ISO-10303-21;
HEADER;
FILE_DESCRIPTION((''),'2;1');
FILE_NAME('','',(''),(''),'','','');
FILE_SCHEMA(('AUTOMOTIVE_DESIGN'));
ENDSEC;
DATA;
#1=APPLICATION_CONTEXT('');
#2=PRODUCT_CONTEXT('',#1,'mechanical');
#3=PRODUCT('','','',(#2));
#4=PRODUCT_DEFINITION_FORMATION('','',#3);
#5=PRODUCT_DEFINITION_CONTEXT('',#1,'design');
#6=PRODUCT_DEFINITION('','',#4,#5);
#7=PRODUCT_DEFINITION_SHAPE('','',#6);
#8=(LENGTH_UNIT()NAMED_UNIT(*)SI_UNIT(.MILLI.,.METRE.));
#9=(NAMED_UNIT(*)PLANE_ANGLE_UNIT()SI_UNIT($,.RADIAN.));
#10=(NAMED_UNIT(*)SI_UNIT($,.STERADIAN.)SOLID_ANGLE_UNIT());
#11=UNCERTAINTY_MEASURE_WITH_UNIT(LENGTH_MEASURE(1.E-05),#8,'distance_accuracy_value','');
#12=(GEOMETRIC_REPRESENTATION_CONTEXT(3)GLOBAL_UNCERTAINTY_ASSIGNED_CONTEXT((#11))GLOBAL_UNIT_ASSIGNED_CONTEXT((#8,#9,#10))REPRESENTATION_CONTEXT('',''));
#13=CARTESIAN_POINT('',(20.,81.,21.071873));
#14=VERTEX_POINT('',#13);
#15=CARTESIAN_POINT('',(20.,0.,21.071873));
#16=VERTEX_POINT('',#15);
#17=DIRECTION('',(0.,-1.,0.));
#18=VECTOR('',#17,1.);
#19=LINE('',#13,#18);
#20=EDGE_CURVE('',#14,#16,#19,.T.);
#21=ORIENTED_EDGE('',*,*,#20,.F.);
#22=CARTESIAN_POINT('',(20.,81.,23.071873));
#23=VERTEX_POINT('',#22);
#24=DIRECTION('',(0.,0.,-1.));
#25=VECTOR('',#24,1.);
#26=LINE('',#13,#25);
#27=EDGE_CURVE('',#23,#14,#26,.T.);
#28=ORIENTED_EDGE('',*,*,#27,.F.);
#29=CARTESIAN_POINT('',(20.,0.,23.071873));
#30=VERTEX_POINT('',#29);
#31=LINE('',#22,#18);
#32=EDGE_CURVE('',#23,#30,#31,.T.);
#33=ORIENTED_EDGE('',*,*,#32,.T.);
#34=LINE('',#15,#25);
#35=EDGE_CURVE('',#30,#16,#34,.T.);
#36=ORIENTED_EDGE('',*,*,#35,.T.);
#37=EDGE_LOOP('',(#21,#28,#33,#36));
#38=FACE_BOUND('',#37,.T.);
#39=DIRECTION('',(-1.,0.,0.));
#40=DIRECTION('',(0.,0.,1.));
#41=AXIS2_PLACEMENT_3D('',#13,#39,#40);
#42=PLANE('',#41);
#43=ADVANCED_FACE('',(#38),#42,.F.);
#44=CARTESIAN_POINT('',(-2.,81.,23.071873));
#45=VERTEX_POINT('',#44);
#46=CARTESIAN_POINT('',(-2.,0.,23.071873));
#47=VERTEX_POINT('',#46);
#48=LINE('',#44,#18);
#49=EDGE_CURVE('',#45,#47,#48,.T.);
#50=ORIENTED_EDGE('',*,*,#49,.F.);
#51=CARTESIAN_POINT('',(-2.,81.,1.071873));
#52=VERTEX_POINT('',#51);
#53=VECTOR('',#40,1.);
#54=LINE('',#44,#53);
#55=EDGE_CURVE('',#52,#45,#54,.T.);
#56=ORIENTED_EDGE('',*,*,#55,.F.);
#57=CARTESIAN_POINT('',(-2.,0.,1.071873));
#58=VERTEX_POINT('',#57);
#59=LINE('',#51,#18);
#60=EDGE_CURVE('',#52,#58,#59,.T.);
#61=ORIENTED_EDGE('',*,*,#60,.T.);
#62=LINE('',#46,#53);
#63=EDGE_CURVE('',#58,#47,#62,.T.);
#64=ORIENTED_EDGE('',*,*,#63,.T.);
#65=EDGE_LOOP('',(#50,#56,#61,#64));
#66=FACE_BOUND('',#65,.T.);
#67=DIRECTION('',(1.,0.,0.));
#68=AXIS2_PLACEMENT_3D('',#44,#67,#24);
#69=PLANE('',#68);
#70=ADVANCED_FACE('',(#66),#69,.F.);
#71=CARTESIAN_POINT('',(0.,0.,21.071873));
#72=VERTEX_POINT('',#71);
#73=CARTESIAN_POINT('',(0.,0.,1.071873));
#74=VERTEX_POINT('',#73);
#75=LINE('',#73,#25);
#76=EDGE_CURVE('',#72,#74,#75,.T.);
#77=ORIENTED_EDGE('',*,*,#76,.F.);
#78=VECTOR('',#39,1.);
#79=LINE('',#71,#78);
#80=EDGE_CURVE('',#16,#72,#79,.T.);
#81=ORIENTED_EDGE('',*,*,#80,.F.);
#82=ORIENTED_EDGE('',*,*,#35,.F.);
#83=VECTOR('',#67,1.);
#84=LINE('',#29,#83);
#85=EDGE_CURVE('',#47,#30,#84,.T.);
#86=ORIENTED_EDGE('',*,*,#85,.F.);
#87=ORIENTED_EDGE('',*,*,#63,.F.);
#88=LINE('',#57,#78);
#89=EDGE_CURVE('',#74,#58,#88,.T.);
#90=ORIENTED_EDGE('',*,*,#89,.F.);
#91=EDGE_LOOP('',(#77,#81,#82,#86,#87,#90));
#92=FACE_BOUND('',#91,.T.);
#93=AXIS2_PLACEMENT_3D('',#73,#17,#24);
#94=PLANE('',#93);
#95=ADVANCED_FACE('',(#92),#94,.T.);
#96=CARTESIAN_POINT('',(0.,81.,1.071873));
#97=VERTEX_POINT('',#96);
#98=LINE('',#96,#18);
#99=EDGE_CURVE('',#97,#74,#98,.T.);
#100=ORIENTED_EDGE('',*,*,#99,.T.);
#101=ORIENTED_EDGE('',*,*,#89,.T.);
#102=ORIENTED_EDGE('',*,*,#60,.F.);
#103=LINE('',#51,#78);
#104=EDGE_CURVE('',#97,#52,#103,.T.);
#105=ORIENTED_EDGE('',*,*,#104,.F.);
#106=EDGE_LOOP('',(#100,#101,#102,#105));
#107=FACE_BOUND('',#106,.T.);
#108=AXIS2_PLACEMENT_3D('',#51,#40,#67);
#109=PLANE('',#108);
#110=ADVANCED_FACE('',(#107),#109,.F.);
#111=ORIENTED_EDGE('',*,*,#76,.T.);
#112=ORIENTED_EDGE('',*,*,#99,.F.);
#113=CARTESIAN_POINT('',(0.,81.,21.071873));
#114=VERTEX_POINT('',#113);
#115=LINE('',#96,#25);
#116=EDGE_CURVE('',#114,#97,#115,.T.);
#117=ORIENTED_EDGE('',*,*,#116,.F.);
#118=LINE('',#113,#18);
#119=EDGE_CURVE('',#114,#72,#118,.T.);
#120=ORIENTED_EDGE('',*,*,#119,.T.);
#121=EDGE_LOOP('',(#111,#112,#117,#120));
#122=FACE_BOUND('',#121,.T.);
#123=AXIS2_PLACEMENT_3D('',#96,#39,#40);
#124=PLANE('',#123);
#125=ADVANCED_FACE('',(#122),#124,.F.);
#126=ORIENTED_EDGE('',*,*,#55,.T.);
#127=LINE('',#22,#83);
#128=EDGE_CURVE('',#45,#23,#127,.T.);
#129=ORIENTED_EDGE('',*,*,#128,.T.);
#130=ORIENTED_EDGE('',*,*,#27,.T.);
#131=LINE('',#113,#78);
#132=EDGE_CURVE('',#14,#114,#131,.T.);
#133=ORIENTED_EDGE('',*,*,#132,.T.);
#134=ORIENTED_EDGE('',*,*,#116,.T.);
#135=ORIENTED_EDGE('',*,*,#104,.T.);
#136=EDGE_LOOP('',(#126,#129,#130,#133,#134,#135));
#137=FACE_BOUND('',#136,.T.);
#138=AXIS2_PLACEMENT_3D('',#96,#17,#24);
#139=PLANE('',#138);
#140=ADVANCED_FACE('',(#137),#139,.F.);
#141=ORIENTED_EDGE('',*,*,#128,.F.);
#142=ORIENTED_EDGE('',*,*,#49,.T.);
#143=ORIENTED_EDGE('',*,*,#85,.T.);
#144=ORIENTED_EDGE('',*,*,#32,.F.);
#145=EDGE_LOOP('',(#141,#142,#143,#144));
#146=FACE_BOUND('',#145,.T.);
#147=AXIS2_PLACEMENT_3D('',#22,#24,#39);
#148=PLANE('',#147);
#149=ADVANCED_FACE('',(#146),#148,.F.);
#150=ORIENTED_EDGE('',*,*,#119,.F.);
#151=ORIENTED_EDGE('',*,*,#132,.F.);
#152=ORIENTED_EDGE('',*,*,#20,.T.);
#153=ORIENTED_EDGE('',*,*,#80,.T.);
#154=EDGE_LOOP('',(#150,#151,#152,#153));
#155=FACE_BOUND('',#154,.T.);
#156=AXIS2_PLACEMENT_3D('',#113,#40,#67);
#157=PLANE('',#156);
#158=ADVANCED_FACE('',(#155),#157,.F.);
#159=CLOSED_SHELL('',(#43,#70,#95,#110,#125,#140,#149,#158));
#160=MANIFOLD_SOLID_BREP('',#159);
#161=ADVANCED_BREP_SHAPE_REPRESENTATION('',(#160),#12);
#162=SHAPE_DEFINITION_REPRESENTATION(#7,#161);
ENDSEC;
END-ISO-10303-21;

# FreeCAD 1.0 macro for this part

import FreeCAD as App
import Part
import Sketcher


def add_polygon(sketch, points):
    """Adds a closed chain of lines whose ends are joined by coincident constraints."""
    first, n = sketch.GeometryCount, len(points)
    for a, b in zip(points, points[1:] + points[:1]):
        sketch.addGeometry(Part.LineSegment(App.Vector(*a, 0), App.Vector(*b, 0)), False)
    for i in range(n):
        sketch.addConstraint(Sketcher.Constraint("Coincident", first + i, 2, first + (i + 1) % n, 1))

doc = App.newDocument("Part")
body = doc.addObject("PartDesign::Body", "Body")

sketch1 = body.newObject("Sketcher::SketchObject", "Sketch")
sketch1.AttachmentSupport = (doc.getObject("XZ_Plane"), [""])
sketch1.MapMode = "FlatFace"
add_polygon(sketch1, [(0, 21.1), (0, 1.1), (-2, 1.1), (-2, 23.1), (20, 23.1), (20, 21.1)])
sketch1.addConstraint(Sketcher.Constraint("Vertical", 0))
sketch1.addConstraint(Sketcher.Constraint("Horizontal", 1))
sketch1.addConstraint(Sketcher.Constraint("Vertical", 2))
sketch1.addConstraint(Sketcher.Constraint("Horizontal", 3))
sketch1.addConstraint(Sketcher.Constraint("Vertical", 4))
sketch1.addConstraint(Sketcher.Constraint("Horizontal", 5))
sketch1.addConstraint(Sketcher.Constraint("PointOnObject", 0, 2, -2))
sketch1.addConstraint(Sketcher.Constraint("Equal", 5, 0))
sketch1.addConstraint(Sketcher.Constraint("Equal", 3, 2))
sketch1.addConstraint(Sketcher.Constraint("DistanceX", 1, 2, 1, 1, 2.0))
sketch1.addConstraint(Sketcher.Constraint("DistanceX", 3, 1, 3, 2, 22.0))
sketch1.addConstraint(Sketcher.Constraint("DistanceY", -1, 1, 0, 2, 1.071873))
pad1 = body.newObject("PartDesign::Pad", "Pad")
pad1.Profile = sketch1
pad1.Length = 81
pad1.Reversed = True

doc.recompute()
